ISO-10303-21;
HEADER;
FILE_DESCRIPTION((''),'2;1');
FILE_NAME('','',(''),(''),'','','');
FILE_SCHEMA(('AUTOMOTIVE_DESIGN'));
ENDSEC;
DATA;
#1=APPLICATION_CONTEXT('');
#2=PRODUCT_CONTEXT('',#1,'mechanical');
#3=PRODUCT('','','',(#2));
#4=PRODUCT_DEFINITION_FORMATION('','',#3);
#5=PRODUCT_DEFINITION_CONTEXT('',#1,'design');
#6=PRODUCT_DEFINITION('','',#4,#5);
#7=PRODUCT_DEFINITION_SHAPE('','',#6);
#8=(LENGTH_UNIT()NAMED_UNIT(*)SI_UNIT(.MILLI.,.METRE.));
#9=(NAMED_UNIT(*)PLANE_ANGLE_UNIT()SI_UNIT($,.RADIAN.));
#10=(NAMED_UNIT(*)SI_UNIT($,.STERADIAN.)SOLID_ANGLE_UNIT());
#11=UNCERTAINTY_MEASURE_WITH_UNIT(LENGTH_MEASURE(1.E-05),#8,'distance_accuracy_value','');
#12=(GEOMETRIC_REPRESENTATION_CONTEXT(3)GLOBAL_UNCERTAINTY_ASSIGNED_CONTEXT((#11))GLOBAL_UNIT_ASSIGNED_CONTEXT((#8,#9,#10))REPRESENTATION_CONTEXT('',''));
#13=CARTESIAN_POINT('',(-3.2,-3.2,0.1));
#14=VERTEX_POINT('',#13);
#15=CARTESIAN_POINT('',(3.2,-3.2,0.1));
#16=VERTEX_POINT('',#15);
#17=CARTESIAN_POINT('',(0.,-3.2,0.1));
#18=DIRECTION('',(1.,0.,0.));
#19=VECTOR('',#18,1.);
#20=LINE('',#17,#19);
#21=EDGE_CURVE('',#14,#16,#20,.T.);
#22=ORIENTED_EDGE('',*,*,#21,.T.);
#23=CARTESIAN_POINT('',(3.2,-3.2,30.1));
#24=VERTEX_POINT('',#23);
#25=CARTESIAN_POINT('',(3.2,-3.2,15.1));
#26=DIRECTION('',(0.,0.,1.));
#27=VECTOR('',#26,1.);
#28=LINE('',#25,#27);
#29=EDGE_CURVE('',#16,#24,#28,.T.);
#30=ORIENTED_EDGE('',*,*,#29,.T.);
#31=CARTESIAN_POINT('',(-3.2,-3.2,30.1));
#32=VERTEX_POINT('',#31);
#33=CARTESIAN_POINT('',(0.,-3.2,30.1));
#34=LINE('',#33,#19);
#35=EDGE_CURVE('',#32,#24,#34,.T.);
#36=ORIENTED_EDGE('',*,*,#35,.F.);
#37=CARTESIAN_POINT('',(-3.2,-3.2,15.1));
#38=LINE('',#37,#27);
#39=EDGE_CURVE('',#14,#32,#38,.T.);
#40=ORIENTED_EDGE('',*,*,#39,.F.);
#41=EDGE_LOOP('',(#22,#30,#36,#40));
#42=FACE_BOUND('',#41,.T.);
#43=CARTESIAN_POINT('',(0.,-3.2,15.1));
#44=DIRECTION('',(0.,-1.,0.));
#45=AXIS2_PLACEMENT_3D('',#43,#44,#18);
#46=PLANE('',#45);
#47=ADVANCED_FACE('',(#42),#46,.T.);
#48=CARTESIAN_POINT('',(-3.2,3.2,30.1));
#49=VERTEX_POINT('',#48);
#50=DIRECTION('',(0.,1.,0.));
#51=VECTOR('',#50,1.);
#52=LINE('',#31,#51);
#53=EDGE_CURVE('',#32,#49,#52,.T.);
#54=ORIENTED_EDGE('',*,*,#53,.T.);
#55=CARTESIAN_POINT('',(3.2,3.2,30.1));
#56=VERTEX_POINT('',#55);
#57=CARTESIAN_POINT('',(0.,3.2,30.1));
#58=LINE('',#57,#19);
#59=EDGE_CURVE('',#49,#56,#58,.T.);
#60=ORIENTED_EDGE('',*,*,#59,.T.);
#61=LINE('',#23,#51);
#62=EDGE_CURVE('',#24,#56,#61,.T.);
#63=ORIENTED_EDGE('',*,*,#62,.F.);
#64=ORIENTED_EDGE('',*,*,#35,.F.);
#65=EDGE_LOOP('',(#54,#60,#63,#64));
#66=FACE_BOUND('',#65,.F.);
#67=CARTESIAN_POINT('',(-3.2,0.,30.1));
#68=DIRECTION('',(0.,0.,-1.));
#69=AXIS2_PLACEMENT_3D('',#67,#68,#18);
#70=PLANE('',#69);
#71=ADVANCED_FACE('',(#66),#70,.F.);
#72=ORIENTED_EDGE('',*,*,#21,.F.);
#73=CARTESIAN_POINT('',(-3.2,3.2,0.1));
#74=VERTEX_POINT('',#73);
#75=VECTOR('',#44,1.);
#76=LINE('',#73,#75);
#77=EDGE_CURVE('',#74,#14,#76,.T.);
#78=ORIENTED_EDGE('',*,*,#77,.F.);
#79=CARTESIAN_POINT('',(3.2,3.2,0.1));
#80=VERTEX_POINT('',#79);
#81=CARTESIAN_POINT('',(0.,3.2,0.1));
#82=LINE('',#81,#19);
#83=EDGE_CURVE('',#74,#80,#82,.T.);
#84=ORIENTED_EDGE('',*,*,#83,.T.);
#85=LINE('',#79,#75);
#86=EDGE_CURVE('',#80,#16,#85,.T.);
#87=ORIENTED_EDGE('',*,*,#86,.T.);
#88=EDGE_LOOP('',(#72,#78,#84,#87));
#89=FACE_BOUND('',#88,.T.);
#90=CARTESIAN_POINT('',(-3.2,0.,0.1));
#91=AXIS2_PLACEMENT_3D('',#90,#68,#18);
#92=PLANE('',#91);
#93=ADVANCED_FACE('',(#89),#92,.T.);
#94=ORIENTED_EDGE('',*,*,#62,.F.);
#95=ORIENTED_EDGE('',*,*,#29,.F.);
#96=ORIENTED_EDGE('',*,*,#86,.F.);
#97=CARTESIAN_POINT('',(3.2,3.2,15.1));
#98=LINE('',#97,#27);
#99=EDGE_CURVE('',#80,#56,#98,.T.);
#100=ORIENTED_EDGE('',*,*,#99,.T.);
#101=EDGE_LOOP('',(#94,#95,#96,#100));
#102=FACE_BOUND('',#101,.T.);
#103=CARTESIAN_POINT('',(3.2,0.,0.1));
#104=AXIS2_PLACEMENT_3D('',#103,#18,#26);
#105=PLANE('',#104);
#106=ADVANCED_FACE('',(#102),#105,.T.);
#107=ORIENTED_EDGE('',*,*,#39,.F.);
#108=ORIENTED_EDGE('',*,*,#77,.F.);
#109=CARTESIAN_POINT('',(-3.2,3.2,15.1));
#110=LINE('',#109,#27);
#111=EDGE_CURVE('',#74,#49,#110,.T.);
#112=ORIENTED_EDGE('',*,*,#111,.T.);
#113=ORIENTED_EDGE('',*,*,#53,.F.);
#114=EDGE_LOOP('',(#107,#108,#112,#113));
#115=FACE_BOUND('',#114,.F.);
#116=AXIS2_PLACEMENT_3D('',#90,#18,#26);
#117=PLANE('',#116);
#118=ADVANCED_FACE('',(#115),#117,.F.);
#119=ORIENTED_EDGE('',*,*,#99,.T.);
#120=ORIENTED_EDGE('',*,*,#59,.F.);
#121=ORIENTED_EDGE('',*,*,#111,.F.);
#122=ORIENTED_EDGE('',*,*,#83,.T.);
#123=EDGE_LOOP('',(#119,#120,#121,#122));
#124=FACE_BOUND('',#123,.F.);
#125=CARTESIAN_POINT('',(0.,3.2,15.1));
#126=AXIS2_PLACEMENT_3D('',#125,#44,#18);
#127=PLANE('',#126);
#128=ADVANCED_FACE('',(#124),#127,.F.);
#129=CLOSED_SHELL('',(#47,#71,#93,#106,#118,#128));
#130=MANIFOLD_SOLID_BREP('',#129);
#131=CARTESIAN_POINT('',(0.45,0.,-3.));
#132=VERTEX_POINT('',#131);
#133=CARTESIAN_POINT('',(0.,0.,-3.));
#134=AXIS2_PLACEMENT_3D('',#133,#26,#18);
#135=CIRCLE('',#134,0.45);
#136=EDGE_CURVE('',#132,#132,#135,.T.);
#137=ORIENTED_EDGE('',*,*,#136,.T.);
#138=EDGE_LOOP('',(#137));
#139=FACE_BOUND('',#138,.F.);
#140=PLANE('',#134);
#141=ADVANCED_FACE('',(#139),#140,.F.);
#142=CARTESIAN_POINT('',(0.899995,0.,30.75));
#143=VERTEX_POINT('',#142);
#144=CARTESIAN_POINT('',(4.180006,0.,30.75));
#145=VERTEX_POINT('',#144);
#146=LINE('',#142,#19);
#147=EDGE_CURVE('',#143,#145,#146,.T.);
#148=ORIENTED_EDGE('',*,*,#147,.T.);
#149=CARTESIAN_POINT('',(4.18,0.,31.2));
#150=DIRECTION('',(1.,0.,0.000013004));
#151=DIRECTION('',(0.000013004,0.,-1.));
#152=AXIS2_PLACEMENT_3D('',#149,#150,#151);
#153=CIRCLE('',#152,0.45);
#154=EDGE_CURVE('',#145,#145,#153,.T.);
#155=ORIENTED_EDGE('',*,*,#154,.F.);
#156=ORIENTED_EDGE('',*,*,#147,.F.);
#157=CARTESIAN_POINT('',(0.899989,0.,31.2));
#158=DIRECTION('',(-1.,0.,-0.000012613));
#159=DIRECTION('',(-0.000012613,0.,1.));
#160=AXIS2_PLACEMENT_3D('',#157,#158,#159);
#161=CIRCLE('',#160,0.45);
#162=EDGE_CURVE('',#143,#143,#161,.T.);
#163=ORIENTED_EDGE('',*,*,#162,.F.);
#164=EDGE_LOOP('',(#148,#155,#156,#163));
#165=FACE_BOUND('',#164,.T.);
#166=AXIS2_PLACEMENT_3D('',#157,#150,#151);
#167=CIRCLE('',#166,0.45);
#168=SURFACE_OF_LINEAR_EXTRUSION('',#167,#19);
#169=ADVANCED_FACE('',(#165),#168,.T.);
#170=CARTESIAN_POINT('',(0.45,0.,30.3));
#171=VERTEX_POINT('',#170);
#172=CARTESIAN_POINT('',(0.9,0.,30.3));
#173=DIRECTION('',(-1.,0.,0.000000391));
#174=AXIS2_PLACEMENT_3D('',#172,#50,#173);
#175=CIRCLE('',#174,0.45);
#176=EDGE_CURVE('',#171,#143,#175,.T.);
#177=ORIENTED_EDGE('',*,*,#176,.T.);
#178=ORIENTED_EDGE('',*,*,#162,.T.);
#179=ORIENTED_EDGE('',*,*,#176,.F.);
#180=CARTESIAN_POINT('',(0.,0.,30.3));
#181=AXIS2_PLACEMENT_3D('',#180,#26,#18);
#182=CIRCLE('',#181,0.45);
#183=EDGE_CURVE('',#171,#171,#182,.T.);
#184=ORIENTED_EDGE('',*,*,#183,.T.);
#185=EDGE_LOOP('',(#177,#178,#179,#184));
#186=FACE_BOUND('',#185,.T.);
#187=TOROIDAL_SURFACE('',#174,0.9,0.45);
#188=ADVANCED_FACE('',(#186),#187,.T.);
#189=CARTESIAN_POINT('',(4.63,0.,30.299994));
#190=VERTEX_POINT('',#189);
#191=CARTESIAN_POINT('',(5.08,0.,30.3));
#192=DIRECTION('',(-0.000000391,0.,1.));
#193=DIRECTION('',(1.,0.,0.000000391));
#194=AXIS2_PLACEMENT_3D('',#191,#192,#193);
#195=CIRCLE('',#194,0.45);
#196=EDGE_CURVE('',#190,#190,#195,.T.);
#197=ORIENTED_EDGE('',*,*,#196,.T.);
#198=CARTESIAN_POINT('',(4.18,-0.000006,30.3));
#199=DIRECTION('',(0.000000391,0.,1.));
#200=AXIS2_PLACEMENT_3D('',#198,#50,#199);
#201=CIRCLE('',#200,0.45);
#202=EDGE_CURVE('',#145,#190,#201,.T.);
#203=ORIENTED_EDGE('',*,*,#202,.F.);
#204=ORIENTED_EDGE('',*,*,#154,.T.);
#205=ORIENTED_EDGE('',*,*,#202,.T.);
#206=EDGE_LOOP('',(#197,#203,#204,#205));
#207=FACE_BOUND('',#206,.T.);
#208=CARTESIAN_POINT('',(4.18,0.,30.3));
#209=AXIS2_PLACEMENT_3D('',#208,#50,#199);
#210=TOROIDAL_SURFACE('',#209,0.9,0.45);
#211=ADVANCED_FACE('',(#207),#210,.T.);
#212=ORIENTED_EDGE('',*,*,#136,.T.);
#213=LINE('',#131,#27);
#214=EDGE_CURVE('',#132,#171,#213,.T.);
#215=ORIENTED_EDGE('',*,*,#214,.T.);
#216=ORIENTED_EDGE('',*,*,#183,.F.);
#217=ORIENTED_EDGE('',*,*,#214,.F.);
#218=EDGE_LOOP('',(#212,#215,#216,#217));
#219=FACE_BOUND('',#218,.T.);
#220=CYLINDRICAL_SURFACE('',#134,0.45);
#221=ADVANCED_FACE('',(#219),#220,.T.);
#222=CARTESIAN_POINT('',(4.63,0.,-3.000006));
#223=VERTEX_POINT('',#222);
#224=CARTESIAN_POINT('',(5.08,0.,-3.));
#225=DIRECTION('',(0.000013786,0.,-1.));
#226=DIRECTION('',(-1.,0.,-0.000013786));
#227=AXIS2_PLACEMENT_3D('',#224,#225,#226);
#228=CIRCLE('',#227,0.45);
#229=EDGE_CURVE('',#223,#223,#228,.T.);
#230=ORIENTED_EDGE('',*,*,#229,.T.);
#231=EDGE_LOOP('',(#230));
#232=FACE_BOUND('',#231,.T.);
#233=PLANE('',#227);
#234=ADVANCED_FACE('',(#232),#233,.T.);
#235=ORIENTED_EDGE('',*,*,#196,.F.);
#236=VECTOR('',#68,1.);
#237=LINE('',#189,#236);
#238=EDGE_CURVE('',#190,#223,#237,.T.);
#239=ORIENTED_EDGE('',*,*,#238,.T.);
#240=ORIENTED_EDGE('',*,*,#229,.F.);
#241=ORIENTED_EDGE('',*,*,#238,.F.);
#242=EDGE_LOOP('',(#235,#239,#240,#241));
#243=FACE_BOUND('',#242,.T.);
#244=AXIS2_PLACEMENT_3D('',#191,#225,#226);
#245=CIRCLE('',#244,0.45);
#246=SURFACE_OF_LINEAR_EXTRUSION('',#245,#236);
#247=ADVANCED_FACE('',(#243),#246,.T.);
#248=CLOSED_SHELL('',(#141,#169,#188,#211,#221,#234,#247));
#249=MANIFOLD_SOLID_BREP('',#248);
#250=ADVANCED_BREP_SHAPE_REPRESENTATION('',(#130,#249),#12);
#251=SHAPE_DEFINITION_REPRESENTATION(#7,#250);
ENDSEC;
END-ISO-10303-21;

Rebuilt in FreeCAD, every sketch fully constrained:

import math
import FreeCAD as App
import Part
import Sketcher
Q = App.Units.Quantity

doc = App.newDocument("Part")
body = doc.addObject("PartDesign::Body", "Body")

# Sketch on XY plane
sketch1 = body.newObject("Sketcher::SketchObject", "Sketch")
sketch1.AttachmentSupport = (doc.getObject("XY_Plane"), [""])
sketch1.MapMode = "FlatFace"
sketch1.AttachmentOffset = App.Placement(App.Vector(0, 0, -2), App.Rotation())
sketch1.addGeometry(Part.Circle(App.Vector(0, 0, 0), App.Vector(0, 0, 1), 0.45), False)
sketch1.addConstraint(Sketcher.Constraint("Coincident", 0, 3, -1, 1))
sketch1.addConstraint(Sketcher.Constraint("Diameter", 0, Q("0.9 mm")))

# Sketch on XZ plane
sketch2 = body.newObject("Sketcher::SketchObject", "Sketch001")
sketch2.AttachmentSupport = (doc.getObject("XZ_Plane"), [""])
sketch2.MapMode = "FlatFace"
sketch2.addGeometry(Part.LineSegment(App.Vector(0, -3, 0), App.Vector(0, 30.3, 0)), False)
sketch2.addGeometry(Part.ArcOfCircle(Part.Circle(App.Vector(0.9, 30.3, 0), App.Vector(0, 0, 1), 0.9), math.radians(90), math.radians(180)), False)
sketch2.addGeometry(Part.LineSegment(App.Vector(0.9, 31.2, 0), App.Vector(4.2, 31.2, 0)), False)
sketch2.addGeometry(Part.ArcOfCircle(Part.Circle(App.Vector(4.2, 30.3, 0), App.Vector(0, 0, 1), 0.9), math.radians(0), math.radians(90)), False)
sketch2.addGeometry(Part.LineSegment(App.Vector(5.1, 30.3, 0), App.Vector(5.1, -3, 0)), False)
sketch2.addConstraint(Sketcher.Constraint("Tangent", 0, 2, 1, 2))
sketch2.addConstraint(Sketcher.Constraint("Coincident", 1, 1, 2, 1))
sketch2.addConstraint(Sketcher.Constraint("Tangent", 2, 2, 3, 2))
sketch2.addConstraint(Sketcher.Constraint("Tangent", 3, 1, 4, 1))
sketch2.addConstraint(Sketcher.Constraint("Vertical", 0))
sketch2.addConstraint(Sketcher.Constraint("Horizontal", 2))
sketch2.addConstraint(Sketcher.Constraint("Vertical", 4))
sketch2.addConstraint(Sketcher.Constraint("Equal", 1, 3))
sketch2.addConstraint(Sketcher.Constraint("PointOnObject", 0, 1, -2))
sketch2.addConstraint(Sketcher.Constraint("Horizontal", 0, 1, 4, 2))
sketch2.addConstraint(Sketcher.Constraint("Radius", 1, Q("0.9 mm")))
sketch2.addConstraint(Sketcher.Constraint("DistanceY", 0, 1, 0, 2, Q("33.3 mm")))
sketch2.addConstraint(Sketcher.Constraint("DistanceY", 0, 1, -1, 1, Q("3 mm")))
sketch2.addConstraint(Sketcher.Constraint("DistanceX", -1, 1, 3, 3, Q("4.18 mm")))
sketch2.addConstraint(Sketcher.Constraint("DistanceX", 2, 1, 2, 2, Q("3.280011 mm")))
doc.recompute()

additivepipe = body.newObject("PartDesign::AdditivePipe", "AdditivePipe")
additivepipe.Profile = sketch1
additivepipe.Spine = (sketch2, ["Edge1", "Edge2", "Edge3", "Edge4", "Edge5"])
body2 = doc.addObject("PartDesign::Body", "Body001")

# Sketch on XZ plane
sketch3 = body2.newObject("Sketcher::SketchObject", "Sketch002")
sketch3.AttachmentSupport = (doc.getObject("XZ_Plane001"), [""])
sketch3.MapMode = "FlatFace"
sketch3.addGeometry(Part.LineSegment(App.Vector(-3, 30, 0), App.Vector(-3, 0, 0)), False)
sketch3.addGeometry(Part.LineSegment(App.Vector(-3, 0, 0), App.Vector(3, 0, 0)), False)
sketch3.addGeometry(Part.LineSegment(App.Vector(3, 0, 0), App.Vector(3, 30, 0)), False)
sketch3.addGeometry(Part.LineSegment(App.Vector(3, 30, 0), App.Vector(-3, 30, 0)), False)
sketch3.addConstraint(Sketcher.Constraint("Coincident", 0, 2, 1, 1))
sketch3.addConstraint(Sketcher.Constraint("Coincident", 1, 2, 2, 1))
sketch3.addConstraint(Sketcher.Constraint("Coincident", 2, 2, 3, 1))
sketch3.addConstraint(Sketcher.Constraint("Coincident", 3, 2, 0, 1))
sketch3.addConstraint(Sketcher.Constraint("Vertical", 0))
sketch3.addConstraint(Sketcher.Constraint("Horizontal", 1))
sketch3.addConstraint(Sketcher.Constraint("Vertical", 2))
sketch3.addConstraint(Sketcher.Constraint("Horizontal", 3))
sketch3.addConstraint(Sketcher.Constraint("DistanceY", 0, 2, 0, 1, Q("30 mm")))
sketch3.addConstraint(Sketcher.Constraint("DistanceX", 1, 1, 1, 2, Q("6.4 mm")))
sketch3.addConstraint(Sketcher.Constraint("DistanceX", 0, 2, -1, 1, Q("3.2 mm")))
sketch3.addConstraint(Sketcher.Constraint("DistanceY", -1, 1, 0, 2, Q("0.1 mm")))
pad1 = body2.newObject("PartDesign::Pad", "Pad")
pad1.Profile = sketch3
pad1.Length = 6.4
pad1.Midplane = True

doc.recompute()
